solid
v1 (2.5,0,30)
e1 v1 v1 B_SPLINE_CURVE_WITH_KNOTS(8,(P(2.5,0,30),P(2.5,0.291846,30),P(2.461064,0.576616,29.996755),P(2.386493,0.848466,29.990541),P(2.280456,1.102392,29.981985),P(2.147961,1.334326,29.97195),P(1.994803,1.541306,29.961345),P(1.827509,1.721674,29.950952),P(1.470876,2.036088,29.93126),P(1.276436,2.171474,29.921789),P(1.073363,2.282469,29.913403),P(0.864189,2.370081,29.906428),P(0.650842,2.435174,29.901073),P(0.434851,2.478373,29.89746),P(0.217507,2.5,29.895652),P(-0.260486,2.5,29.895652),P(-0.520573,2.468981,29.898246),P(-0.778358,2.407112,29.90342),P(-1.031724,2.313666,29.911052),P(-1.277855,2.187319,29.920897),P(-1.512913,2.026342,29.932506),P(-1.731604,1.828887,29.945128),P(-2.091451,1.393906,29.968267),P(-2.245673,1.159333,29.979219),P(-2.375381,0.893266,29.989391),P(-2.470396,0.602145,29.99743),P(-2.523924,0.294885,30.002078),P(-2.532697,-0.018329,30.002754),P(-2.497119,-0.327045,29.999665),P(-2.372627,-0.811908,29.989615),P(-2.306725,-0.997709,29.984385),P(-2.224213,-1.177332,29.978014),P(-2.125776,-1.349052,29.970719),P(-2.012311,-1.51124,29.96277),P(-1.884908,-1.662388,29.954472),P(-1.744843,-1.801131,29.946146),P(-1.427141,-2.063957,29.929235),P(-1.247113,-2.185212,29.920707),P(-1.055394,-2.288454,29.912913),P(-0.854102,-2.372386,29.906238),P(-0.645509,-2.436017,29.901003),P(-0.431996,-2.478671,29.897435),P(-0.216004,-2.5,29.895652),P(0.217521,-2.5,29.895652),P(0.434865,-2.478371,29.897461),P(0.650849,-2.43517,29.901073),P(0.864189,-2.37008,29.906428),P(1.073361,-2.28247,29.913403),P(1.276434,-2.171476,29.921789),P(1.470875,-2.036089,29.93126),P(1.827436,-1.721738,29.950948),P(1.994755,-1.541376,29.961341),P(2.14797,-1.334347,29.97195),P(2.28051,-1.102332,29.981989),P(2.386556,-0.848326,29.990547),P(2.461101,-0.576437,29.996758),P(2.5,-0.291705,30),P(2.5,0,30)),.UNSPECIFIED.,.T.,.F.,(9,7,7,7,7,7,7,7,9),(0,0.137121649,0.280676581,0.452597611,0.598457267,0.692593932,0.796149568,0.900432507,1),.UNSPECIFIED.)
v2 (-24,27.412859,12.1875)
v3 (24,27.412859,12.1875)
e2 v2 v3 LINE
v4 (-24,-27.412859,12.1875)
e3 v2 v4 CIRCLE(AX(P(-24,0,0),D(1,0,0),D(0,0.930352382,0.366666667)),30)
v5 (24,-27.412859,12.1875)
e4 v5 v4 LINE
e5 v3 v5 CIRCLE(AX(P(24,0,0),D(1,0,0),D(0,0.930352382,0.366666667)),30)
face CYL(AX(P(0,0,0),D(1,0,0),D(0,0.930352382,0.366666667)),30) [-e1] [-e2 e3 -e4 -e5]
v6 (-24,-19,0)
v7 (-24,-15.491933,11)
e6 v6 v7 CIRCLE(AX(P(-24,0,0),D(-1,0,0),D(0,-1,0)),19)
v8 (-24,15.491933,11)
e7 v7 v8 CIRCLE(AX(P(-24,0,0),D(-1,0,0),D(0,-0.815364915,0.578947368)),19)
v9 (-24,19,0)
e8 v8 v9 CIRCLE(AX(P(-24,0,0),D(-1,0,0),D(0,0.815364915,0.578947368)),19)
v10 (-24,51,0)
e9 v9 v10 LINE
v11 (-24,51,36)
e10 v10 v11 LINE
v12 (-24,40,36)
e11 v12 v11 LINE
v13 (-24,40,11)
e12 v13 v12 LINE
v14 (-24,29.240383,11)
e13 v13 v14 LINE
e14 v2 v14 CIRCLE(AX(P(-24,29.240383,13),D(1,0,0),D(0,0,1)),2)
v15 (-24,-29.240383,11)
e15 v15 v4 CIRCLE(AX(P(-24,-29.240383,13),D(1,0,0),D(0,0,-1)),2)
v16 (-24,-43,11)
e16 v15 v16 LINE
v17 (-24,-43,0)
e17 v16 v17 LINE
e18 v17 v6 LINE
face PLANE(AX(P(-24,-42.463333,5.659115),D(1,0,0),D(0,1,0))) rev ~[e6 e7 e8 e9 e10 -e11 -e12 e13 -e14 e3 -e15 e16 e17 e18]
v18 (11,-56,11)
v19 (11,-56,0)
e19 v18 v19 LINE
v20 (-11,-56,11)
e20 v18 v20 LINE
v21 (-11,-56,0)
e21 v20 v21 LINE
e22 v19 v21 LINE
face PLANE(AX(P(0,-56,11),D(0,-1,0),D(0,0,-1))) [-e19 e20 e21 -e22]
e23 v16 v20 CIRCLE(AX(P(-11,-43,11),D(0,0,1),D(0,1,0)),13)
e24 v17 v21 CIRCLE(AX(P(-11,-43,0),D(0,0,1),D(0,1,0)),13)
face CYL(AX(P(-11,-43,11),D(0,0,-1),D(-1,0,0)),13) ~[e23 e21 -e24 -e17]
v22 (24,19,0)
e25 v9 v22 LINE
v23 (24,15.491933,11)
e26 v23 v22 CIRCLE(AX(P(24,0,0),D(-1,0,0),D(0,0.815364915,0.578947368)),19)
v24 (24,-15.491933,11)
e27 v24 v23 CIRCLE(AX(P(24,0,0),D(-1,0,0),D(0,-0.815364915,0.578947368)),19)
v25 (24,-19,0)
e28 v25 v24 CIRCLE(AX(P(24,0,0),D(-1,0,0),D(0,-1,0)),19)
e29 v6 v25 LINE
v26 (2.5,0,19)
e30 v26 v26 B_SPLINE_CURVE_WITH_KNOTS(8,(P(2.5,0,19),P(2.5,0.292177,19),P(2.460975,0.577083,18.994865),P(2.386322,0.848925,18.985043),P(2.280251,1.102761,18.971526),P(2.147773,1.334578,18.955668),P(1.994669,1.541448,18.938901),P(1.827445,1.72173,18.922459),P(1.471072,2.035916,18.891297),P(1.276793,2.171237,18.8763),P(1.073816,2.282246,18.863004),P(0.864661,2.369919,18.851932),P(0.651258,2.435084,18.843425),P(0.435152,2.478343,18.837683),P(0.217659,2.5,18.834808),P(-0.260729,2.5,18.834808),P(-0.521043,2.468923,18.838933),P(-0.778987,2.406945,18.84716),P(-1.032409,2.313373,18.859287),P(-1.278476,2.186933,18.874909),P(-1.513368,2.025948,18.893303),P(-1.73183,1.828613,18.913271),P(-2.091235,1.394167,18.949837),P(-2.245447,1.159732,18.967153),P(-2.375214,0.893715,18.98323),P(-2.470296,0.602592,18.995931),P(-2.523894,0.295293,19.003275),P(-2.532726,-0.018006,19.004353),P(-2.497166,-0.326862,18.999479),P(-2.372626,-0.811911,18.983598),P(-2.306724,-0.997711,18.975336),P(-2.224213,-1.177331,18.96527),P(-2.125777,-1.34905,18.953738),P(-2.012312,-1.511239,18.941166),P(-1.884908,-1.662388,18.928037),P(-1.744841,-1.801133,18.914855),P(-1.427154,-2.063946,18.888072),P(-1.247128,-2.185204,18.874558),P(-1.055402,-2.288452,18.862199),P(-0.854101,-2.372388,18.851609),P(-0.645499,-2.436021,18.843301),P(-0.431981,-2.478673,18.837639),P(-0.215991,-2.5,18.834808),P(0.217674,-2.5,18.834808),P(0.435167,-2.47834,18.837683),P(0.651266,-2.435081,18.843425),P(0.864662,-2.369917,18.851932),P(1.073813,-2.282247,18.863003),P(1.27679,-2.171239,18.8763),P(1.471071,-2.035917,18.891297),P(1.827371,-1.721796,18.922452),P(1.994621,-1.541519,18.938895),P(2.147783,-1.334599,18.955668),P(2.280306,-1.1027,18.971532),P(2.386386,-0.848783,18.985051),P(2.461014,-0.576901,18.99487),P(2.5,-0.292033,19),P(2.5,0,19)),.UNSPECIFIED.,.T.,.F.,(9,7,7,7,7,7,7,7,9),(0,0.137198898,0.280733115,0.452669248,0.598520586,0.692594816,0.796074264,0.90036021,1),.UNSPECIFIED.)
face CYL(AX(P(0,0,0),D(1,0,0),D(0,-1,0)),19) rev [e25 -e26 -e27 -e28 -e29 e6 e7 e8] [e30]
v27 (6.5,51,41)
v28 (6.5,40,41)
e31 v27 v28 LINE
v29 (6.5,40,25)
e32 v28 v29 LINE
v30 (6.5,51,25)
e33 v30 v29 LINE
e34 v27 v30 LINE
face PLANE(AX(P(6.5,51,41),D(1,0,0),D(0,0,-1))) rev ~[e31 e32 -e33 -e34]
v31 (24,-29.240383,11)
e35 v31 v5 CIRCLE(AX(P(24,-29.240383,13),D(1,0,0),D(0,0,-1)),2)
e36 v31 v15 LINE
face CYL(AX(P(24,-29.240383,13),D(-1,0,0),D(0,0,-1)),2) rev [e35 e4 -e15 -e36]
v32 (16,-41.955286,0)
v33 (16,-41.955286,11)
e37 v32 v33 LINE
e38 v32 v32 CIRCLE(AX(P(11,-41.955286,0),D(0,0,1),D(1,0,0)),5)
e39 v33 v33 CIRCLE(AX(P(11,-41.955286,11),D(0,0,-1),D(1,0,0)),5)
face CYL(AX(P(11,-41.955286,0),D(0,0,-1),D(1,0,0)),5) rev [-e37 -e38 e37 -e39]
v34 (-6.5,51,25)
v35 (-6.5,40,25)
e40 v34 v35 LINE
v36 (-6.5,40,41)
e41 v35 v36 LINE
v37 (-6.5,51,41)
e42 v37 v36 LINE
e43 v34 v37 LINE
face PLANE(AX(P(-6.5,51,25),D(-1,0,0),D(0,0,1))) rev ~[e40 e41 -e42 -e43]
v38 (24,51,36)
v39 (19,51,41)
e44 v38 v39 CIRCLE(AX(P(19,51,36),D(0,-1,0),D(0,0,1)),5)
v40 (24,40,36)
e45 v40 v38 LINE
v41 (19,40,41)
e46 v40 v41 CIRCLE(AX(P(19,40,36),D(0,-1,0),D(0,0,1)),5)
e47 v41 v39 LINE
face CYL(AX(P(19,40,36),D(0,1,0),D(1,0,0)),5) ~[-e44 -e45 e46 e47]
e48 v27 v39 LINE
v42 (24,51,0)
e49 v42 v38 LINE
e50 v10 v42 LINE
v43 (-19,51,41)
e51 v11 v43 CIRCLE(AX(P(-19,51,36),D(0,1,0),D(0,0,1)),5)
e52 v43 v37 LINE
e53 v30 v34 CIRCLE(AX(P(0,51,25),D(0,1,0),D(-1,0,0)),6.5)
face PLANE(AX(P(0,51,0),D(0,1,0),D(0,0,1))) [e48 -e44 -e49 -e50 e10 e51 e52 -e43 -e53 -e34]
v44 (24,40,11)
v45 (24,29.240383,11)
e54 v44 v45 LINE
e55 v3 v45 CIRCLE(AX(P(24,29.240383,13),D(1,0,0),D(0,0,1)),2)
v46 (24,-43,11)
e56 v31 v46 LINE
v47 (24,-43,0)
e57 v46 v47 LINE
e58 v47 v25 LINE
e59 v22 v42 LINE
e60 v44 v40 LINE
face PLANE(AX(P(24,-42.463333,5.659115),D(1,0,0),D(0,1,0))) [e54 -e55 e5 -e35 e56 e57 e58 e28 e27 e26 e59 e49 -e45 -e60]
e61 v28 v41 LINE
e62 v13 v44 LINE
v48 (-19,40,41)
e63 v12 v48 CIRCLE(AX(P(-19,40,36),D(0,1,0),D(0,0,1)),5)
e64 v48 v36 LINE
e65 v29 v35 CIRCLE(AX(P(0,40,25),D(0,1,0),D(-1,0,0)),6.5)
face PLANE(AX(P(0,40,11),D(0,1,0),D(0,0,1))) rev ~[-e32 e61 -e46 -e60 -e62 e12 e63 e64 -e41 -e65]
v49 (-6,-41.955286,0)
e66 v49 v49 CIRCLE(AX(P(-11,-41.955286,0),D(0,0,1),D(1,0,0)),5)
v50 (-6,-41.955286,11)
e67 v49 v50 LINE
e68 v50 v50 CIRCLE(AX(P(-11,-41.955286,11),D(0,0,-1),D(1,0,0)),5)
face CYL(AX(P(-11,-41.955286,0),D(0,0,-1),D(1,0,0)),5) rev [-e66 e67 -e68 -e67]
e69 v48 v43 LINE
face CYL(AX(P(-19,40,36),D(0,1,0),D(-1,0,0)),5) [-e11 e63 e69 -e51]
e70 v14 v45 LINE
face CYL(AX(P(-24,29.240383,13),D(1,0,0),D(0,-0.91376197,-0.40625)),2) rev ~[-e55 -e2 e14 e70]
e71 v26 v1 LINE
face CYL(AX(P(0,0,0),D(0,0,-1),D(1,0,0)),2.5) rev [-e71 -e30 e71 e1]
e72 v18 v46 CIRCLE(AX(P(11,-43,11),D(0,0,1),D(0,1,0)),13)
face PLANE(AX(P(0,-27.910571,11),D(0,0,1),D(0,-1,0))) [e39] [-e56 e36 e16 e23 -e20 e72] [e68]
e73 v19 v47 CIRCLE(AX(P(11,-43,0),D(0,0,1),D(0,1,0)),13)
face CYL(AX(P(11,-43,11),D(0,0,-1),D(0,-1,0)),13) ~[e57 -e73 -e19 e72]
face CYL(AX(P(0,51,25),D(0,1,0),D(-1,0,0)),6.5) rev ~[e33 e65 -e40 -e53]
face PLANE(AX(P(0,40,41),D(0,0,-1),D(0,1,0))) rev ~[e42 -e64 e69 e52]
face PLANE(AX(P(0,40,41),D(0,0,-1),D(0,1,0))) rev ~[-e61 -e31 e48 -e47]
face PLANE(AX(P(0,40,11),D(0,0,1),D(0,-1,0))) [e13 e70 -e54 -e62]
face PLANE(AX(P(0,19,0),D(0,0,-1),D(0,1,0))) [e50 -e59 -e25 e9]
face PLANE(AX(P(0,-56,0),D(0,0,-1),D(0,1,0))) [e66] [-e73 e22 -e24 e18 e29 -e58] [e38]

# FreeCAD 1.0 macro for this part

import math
import FreeCAD as App
import Part
import Sketcher
from FreeCAD import Vector


def edges_at(feature, points):
    """Names of the edges that pass closest to the given points."""
    edges = feature.Shape.Edges
    near = lambda p: min(range(len(edges)), key=lambda i: edges[i].distToShape(Part.Vertex(*p))[0])
    return sorted({f"Edge{near(p) + 1}" for p in points})

doc = App.newDocument("Part")
body = doc.addObject("PartDesign::Body", "Body")

sketch1 = body.newObject("Sketcher::SketchObject", "Sketch")
sketch1.AttachmentSupport = (doc.getObject("YZ_Plane"), [""])
sketch1.MapMode = "FlatFace"
sketch1.addGeometry([
    Part.LineSegment(Vector(-56, 0, 0), Vector(-19, 0, 0)),
    Part.ArcOfCircle(Part.Circle(Vector(0, 0, 0), Vector(0, 0, 1), 19), math.radians(145), math.radians(180)),
    Part.ArcOfCircle(Part.Circle(Vector(0, 0, 0), Vector(0, 0, 1), 19), math.radians(35), math.radians(145)),
    Part.ArcOfCircle(Part.Circle(Vector(0, 0, 0), Vector(0, 0, 1), 19), math.radians(0), math.radians(35)),
    Part.LineSegment(Vector(19, 0, 0), Vector(51, 0, 0)),
    Part.LineSegment(Vector(51, 0, 0), Vector(51, 41, 0)),
    Part.LineSegment(Vector(51, 41, 0), Vector(40, 41, 0)),
    Part.LineSegment(Vector(40, 41, 0), Vector(40, 11, 0)),
    Part.LineSegment(Vector(40, 11, 0), Vector(28, 11, 0)),
    Part.ArcOfCircle(Part.Circle(Vector(0, 0, 0), Vector(0, 0, 1), 30), math.radians(22), math.radians(158)),
    Part.LineSegment(Vector(-28, 11, 0), Vector(-56, 11, 0)),
    Part.LineSegment(Vector(-56, 11, 0), Vector(-56, 0, 0)),
], False)
sketch1.addConstraint([
    Sketcher.Constraint("Coincident", 0, 2, 1, 2),
    Sketcher.Constraint("Tangent", 1, 1, 2, 2),
    Sketcher.Constraint("Tangent", 2, 1, 3, 2),
    Sketcher.Constraint("Coincident", 3, 1, 4, 1),
    Sketcher.Constraint("Coincident", 4, 2, 5, 1),
    Sketcher.Constraint("Coincident", 5, 2, 6, 1),
    Sketcher.Constraint("Coincident", 6, 2, 7, 1),
    Sketcher.Constraint("Coincident", 7, 2, 8, 1),
    Sketcher.Constraint("Coincident", 8, 2, 9, 1),
    Sketcher.Constraint("Coincident", 9, 2, 10, 1),
    Sketcher.Constraint("Coincident", 10, 2, 11, 1),
    Sketcher.Constraint("Coincident", 11, 2, 0, 1),
    Sketcher.Constraint("Horizontal", 0),
    Sketcher.Constraint("Horizontal", 4),
    Sketcher.Constraint("Vertical", 5),
    Sketcher.Constraint("Horizontal", 6),
    Sketcher.Constraint("Vertical", 7),
    Sketcher.Constraint("Horizontal", 8),
    Sketcher.Constraint("Horizontal", 10),
    Sketcher.Constraint("Vertical", 11),
    Sketcher.Constraint("Coincident", 1, 3, -1, 1),
    Sketcher.Constraint("Coincident", 3, 3, -1, 1),
    Sketcher.Constraint("Coincident", 9, 3, -1, 1),
    Sketcher.Constraint("PointOnObject", 0, 2, -1),
    Sketcher.Constraint("PointOnObject", 3, 1, -1),
    Sketcher.Constraint("Horizontal", 1, 1, 2, 1),
    Sketcher.Constraint("Horizontal", 2, 1, 7, 2),
    Sketcher.Constraint("Horizontal", 8, 2, 9, 2),
    Sketcher.Constraint("Equal", 6, 11),
    Sketcher.Constraint("Radius", 1, 19.0),
    Sketcher.Constraint("Radius", 9, 30.0),
    Sketcher.Constraint("DistanceX", 0, 1, 0, 2, 37.0),
    Sketcher.Constraint("DistanceX", 4, 1, 4, 2, 32.0),
    Sketcher.Constraint("DistanceX", 6, 2, 6, 1, 11.0),
    Sketcher.Constraint("DistanceY", 5, 1, 5, 2, 41.0),
])
pad1 = body.newObject("PartDesign::Pad", "Pad")
pad1.Profile = sketch1
pad1.Length = 48
pad1.Midplane = True

sketch2 = body.newObject("Sketcher::SketchObject", "Sketch001")
sketch2.AttachmentSupport = (doc.getObject("XZ_Plane"), [""])
sketch2.MapMode = "FlatFace"
sketch2.AttachmentOffset = App.Placement(Vector(0, 0, -51), App.Rotation())
sketch2.addGeometry([
    Part.ArcOfCircle(Part.Circle(Vector(0, 25, 0), Vector(0, 0, 1), 6), math.radians(180), math.radians(360)),
    Part.LineSegment(Vector(-6, 25, 0), Vector(-6, 41, 0)),
    Part.LineSegment(Vector(-6, 41, 0), Vector(6, 41, 0)),
    Part.LineSegment(Vector(6, 41, 0), Vector(6, 25, 0)),
], False)
sketch2.addConstraint([
    Sketcher.Constraint("Tangent", 0, 1, 1, 1),
    Sketcher.Constraint("Coincident", 1, 2, 2, 1),
    Sketcher.Constraint("Coincident", 2, 2, 3, 1),
    Sketcher.Constraint("Tangent", 3, 2, 0, 2),
    Sketcher.Constraint("Vertical", 1),
    Sketcher.Constraint("Horizontal", 2),
    Sketcher.Constraint("Vertical", 3),
    Sketcher.Constraint("PointOnObject", 0, 3, -2),
    Sketcher.Constraint("Radius", 0, 6.5),
    Sketcher.Constraint("DistanceY", 1, 1, 1, 2, 16.0),
    Sketcher.Constraint("DistanceY", -1, 1, 0, 3, 25.0),
])
pocket1 = body.newObject("PartDesign::Pocket", "Pocket")
pocket1.Profile = sketch2
pocket1.Length = 11
pocket1.Reversed = True

sketch3 = body.newObject("Sketcher::SketchObject", "Sketch002")
sketch3.AttachmentSupport = (doc.getObject("XY_Plane"), [""])
sketch3.MapMode = "FlatFace"
sketch3.addGeometry([
    Part.Circle(Vector(11, -42, 0), Vector(0, 0, 1), 5),
    Part.Circle(Vector(-11, -42, 0), Vector(0, 0, 1), 5),
    Part.Circle(Vector(0, 0, 0), Vector(0, 0, 1), 2.5),
], False)
sketch3.addConstraint([
    Sketcher.Constraint("Coincident", 2, 3, -1, 1),
    Sketcher.Constraint("Equal", 0, 1),
    Sketcher.Constraint("Symmetric", 0, 3, 1, 3, -2),
    Sketcher.Constraint("Diameter", 0, 10.0),
    Sketcher.Constraint("Diameter", 2, 5.0),
    Sketcher.Constraint("DistanceX", -1, 1, 0, 3, 11.0),
    Sketcher.Constraint("DistanceY", 0, 3, -1, 1, 41.955286),
])
pocket2 = body.newObject("PartDesign::Pocket", "Pocket001")
pocket2.Profile = sketch3
pocket2.Type = "ThroughAll"
pocket2.Reversed = True
doc.recompute()

fillet = body.newObject("PartDesign::Fillet", "Fillet")
fillet.Base = (pocket2, edges_at(pocket2, [(24, 45.5, 41), (-24, 45.5, 41)]))
fillet.Radius = 5
doc.recompute()

fillet2 = body.newObject("PartDesign::Fillet", "Fillet001")
fillet2.Base = (fillet, edges_at(fillet, [(24, -56, 5.5), (-24, -56, 5.5)]))
fillet2.Radius = 13
doc.recompute()

fillet3 = body.newObject("PartDesign::Fillet", "Fillet002")
fillet3.Base = (fillet2, edges_at(fillet2, [(0, -27.911, 11), (0, 27.911, 11)]))
fillet3.Radius = 2

doc.recompute()
